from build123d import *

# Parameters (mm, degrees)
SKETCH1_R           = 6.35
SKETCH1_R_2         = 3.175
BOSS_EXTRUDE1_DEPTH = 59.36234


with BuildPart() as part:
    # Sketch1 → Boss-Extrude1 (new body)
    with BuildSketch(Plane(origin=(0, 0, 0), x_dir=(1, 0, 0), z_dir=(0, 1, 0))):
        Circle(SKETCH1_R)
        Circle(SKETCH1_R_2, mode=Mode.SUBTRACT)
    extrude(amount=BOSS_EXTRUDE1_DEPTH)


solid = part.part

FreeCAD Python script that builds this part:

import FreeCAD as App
import Part
import Sketcher
Q = App.Units.Quantity

doc = App.newDocument("Part")
body = doc.addObject("PartDesign::Body", "Body")

# Sketch on XZ plane
sketch1 = body.newObject("Sketcher::SketchObject", "Sketch")
sketch1.AttachmentSupport = (doc.getObject("XZ_Plane"), [""])
sketch1.MapMode = "FlatFace"
sketch1.addGeometry(Part.Circle(App.Vector(0, 0, 0), App.Vector(0, 0, 1), 6.3), False)
sketch1.addGeometry(Part.Circle(App.Vector(0, 0, 0), App.Vector(0, 0, 1), 3.2), False)
sketch1.addConstraint(Sketcher.Constraint("Coincident", 0, 3, -1, 1))
sketch1.addConstraint(Sketcher.Constraint("Coincident", 1, 3, -1, 1))
sketch1.addConstraint(Sketcher.Constraint("Diameter", 0, Q("0.5 in")))
sketch1.addConstraint(Sketcher.Constraint("Diameter", 1, Q("0.25 in")))
pad1 = body.newObject("PartDesign::Pad", "Pad")
pad1.Profile = sketch1
pad1.Length = Q("2.3371 in")
pad1.Reversed = True

doc.recompute()
